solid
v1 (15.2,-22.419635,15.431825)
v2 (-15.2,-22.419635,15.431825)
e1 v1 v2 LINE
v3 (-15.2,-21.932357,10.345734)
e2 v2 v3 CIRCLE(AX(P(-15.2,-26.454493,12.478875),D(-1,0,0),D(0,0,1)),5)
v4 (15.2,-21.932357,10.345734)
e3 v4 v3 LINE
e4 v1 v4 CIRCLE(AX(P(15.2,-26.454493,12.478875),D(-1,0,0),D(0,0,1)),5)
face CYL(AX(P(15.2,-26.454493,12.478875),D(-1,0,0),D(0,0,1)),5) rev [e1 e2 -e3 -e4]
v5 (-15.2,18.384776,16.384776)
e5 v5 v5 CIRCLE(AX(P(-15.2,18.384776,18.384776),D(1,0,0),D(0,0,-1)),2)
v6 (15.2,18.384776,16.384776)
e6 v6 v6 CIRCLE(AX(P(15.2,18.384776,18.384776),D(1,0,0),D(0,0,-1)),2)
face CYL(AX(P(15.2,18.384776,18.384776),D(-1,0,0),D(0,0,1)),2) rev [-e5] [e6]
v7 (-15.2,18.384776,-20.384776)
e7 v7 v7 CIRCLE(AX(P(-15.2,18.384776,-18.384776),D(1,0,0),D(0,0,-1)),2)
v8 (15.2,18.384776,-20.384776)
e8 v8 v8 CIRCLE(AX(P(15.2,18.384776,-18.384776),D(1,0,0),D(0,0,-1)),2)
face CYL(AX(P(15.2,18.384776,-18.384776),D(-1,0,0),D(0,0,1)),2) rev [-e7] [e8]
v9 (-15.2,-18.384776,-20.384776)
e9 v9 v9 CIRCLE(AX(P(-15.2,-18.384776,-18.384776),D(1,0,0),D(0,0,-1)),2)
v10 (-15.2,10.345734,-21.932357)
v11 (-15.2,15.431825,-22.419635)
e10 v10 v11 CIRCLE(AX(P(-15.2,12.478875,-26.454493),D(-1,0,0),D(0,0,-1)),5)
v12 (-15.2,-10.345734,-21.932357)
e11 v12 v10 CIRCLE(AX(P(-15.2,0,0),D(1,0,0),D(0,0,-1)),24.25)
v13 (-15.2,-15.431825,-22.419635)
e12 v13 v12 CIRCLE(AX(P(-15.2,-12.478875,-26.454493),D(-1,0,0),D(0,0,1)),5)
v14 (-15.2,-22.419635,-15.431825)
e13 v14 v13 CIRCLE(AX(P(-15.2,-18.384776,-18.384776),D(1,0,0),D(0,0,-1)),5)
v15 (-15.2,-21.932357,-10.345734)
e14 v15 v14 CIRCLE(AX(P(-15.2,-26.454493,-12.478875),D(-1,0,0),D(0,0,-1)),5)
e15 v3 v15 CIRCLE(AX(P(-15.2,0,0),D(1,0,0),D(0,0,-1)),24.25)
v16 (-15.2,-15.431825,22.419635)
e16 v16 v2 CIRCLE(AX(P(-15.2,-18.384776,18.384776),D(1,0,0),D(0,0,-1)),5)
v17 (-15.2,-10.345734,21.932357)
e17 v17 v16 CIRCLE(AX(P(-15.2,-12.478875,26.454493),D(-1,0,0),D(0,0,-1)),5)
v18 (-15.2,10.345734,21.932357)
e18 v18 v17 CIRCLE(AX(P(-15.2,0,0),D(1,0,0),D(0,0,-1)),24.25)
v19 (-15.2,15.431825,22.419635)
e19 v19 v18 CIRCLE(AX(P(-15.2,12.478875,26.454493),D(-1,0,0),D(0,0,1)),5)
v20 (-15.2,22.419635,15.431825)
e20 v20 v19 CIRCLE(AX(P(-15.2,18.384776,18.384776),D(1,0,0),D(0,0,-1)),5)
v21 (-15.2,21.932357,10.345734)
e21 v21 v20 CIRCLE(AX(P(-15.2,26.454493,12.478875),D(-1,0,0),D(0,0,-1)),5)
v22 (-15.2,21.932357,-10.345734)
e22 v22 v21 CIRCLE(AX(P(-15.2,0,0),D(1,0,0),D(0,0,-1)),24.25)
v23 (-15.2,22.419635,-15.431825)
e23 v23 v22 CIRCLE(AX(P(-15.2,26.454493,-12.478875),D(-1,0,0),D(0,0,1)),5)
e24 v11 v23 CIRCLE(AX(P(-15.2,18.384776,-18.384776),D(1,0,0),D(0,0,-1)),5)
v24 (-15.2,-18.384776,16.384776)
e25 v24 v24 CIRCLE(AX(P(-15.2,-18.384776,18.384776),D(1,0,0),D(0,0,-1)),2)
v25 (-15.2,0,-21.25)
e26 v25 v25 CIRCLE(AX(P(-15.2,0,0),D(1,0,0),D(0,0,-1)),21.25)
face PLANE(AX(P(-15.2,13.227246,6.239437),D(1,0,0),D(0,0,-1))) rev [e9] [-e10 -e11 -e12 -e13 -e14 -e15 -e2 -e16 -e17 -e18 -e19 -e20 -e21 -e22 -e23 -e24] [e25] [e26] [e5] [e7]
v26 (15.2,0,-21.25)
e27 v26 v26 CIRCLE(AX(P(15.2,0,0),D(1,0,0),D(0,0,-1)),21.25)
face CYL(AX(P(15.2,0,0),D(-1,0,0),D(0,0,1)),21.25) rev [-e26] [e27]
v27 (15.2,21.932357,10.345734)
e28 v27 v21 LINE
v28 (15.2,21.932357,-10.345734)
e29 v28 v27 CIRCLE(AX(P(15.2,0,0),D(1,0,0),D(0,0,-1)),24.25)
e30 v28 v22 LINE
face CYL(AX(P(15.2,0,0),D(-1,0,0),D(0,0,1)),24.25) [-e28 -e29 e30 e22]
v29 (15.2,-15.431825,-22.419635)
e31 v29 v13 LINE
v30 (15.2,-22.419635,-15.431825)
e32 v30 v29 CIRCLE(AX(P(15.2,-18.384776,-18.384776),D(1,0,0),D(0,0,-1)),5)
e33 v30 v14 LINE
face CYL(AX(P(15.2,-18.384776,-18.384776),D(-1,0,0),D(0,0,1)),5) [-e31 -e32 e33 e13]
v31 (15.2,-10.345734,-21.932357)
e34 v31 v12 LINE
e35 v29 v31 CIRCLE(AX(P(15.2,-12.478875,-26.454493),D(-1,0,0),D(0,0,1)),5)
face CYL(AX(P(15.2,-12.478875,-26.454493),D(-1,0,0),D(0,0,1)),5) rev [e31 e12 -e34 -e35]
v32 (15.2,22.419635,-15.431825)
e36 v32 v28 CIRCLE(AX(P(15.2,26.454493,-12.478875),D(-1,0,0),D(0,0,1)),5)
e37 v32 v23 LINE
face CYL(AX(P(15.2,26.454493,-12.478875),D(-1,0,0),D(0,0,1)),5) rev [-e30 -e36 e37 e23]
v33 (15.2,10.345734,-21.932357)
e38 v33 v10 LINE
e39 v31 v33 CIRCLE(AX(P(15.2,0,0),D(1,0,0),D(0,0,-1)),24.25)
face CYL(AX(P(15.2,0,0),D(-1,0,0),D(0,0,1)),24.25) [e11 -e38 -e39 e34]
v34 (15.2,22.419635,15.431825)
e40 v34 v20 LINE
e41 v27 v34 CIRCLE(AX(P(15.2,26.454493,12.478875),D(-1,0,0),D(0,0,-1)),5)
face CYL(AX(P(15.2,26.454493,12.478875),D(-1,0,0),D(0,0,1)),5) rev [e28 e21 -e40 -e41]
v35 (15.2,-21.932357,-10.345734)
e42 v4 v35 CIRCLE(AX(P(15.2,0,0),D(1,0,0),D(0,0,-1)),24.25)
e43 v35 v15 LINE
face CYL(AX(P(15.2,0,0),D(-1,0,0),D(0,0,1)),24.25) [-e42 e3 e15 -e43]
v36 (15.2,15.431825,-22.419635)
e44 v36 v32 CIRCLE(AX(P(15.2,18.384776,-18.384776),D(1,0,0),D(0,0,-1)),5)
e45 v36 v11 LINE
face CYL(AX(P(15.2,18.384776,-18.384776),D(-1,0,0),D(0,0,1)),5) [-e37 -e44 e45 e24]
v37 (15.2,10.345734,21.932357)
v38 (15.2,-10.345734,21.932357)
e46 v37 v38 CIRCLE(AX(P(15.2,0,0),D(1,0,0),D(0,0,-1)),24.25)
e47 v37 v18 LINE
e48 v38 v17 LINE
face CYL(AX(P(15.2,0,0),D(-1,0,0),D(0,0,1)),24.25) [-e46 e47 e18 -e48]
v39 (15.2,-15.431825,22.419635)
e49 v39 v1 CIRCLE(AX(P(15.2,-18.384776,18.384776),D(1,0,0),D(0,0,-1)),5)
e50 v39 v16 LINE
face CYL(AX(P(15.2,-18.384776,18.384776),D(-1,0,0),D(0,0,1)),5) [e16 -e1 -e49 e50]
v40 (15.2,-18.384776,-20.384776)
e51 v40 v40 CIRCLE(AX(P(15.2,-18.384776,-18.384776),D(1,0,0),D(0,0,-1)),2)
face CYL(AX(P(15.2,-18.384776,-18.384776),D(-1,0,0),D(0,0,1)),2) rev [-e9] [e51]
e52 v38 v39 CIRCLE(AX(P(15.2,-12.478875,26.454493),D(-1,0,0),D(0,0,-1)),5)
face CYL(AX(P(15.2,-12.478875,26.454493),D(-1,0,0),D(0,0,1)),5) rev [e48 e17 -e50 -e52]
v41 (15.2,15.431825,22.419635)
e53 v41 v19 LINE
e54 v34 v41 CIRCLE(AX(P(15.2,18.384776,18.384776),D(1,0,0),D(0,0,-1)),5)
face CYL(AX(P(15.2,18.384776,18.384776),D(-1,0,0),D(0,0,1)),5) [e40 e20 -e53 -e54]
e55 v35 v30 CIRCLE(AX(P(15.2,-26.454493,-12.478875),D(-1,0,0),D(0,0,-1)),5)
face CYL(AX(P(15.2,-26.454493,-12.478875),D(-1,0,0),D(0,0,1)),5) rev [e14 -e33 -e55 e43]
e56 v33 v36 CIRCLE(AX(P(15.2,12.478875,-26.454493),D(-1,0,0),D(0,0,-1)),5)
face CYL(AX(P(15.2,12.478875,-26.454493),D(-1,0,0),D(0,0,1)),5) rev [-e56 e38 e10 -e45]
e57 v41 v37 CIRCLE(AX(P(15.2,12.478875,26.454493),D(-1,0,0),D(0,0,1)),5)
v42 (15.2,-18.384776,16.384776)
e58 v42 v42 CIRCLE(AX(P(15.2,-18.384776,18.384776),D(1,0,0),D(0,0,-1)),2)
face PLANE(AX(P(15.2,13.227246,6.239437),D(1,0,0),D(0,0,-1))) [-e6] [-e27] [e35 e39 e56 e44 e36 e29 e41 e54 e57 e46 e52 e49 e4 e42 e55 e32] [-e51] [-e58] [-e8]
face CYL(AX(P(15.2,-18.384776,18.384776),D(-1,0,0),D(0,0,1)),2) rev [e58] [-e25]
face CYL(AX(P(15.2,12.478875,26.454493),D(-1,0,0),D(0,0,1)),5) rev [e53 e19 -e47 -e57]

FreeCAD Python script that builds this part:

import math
import FreeCAD as App
import Part
import Sketcher
from FreeCAD import Vector

doc = App.newDocument("Part")
body = doc.addObject("PartDesign::Body", "Body")

sketch1 = body.newObject("Sketcher::SketchObject", "Sketch")
sketch1.AttachmentSupport = (doc.getObject("YZ_Plane"), [""])
sketch1.MapMode = "FlatFace"
sketch1.addGeometry([
    Part.ArcOfCircle(Part.Circle(Vector(18.384776, 18.384776, 0), Vector(0, 0, 1), 5), math.radians(-36.1989), math.radians(126.1989)),
    Part.ArcOfCircle(Part.Circle(Vector(12.478875, 26.454493, 0), Vector(0, 0, 1), 5), math.radians(-115.253766), math.radians(-53.8011)),
    Part.ArcOfCircle(Part.Circle(Vector(0, 0, 0), Vector(0, 0, 1), 24.25), math.radians(64.746234), math.radians(115.253766)),
    Part.ArcOfCircle(Part.Circle(Vector(-12.478875, 26.454493, 0), Vector(0, 0, 1), 5), math.radians(-126.1989), math.radians(-64.746234)),
    Part.ArcOfCircle(Part.Circle(Vector(-18.384776, 18.384776, 0), Vector(0, 0, 1), 5), math.radians(53.8011), math.radians(216.1989)),
    Part.ArcOfCircle(Part.Circle(Vector(-26.454493, 12.478875, 0), Vector(0, 0, 1), 5), math.radians(-25.253766), math.radians(36.1989)),
    Part.ArcOfCircle(Part.Circle(Vector(0, 0, 0), Vector(0, 0, 1), 24.25), math.radians(154.746234), math.radians(205.253766)),
    Part.ArcOfCircle(Part.Circle(Vector(-26.454493, -12.478875, 0), Vector(0, 0, 1), 5), math.radians(-36.1989), math.radians(25.253766)),
    Part.ArcOfCircle(Part.Circle(Vector(-18.384776, -18.384776, 0), Vector(0, 0, 1), 5), math.radians(143.8011), math.radians(306.1989)),
    Part.ArcOfCircle(Part.Circle(Vector(-12.478875, -26.454493, 0), Vector(0, 0, 1), 5), math.radians(64.746234), math.radians(126.1989)),
    Part.ArcOfCircle(Part.Circle(Vector(0, 0, 0), Vector(0, 0, 1), 24.25), math.radians(-115.253766), math.radians(-64.746234)),
    Part.ArcOfCircle(Part.Circle(Vector(12.478875, -26.454493, 0), Vector(0, 0, 1), 5), math.radians(53.8011), math.radians(115.253766)),
    Part.ArcOfCircle(Part.Circle(Vector(18.384776, -18.384776, 0), Vector(0, 0, 1), 5), math.radians(-126.1989), math.radians(36.1989)),
    Part.ArcOfCircle(Part.Circle(Vector(26.454493, -12.478875, 0), Vector(0, 0, 1), 5), math.radians(154.746234), math.radians(216.1989)),
    Part.ArcOfCircle(Part.Circle(Vector(0, 0, 0), Vector(0, 0, 1), 24.25), math.radians(-25.253766), math.radians(25.253766)),
    Part.ArcOfCircle(Part.Circle(Vector(26.454493, 12.478875, 0), Vector(0, 0, 1), 5), math.radians(143.8011), math.radians(205.253766)),
    Part.Circle(Vector(-18.384776, 18.384776, 0), Vector(0, 0, 1), 2),
    Part.Circle(Vector(-18.384776, -18.384776, 0), Vector(0, 0, 1), 2),
    Part.Circle(Vector(18.384776, 18.384776, 0), Vector(0, 0, 1), 2),
    Part.Circle(Vector(0, 0, 0), Vector(0, 0, 1), 21.25),
    Part.Circle(Vector(18.384776, -18.384776, 0), Vector(0, 0, 1), 2),
], False)
sketch1.addConstraint([
    Sketcher.Constraint("Tangent", 0, 2, 1, 2),
    Sketcher.Constraint("Tangent", 1, 1, 2, 1),
    Sketcher.Constraint("Tangent", 2, 2, 3, 2),
    Sketcher.Constraint("Tangent", 3, 1, 4, 1),
    Sketcher.Constraint("Tangent", 4, 2, 5, 2),
    Sketcher.Constraint("Tangent", 5, 1, 6, 1),
    Sketcher.Constraint("Tangent", 6, 2, 7, 2),
    Sketcher.Constraint("Tangent", 7, 1, 8, 1),
    Sketcher.Constraint("Tangent", 8, 2, 9, 2),
    Sketcher.Constraint("Tangent", 9, 1, 10, 1),
    Sketcher.Constraint("Tangent", 10, 2, 11, 2),
    Sketcher.Constraint("Tangent", 11, 1, 12, 1),
    Sketcher.Constraint("Tangent", 12, 2, 13, 2),
    Sketcher.Constraint("Tangent", 13, 1, 14, 1),
    Sketcher.Constraint("Tangent", 14, 2, 15, 2),
    Sketcher.Constraint("Tangent", 15, 1, 0, 1),
    Sketcher.Constraint("Coincident", 2, 3, -1, 1),
    Sketcher.Constraint("Coincident", 6, 3, -1, 1),
    Sketcher.Constraint("Coincident", 10, 3, -1, 1),
    Sketcher.Constraint("Coincident", 14, 3, -1, 1),
    Sketcher.Constraint("Coincident", 19, 3, -1, 1),
    Sketcher.Constraint("Coincident", 16, 3, 4, 3),
    Sketcher.Constraint("Coincident", 17, 3, 8, 3),
    Sketcher.Constraint("Coincident", 18, 3, 0, 3),
    Sketcher.Constraint("Coincident", 20, 3, 12, 3),
    Sketcher.Constraint("Equal", 0, 1),
    Sketcher.Constraint("Equal", 1, 3),
    Sketcher.Constraint("Equal", 3, 4),
    Sketcher.Constraint("Equal", 4, 5),
    Sketcher.Constraint("Equal", 2, 6),
    Sketcher.Constraint("Equal", 5, 7),
    Sketcher.Constraint("Equal", 7, 8),
    Sketcher.Constraint("Equal", 8, 9),
    Sketcher.Constraint("Equal", 6, 10),
    Sketcher.Constraint("Equal", 9, 11),
    Sketcher.Constraint("Equal", 11, 12),
    Sketcher.Constraint("Equal", 12, 13),
    Sketcher.Constraint("Equal", 10, 14),
    Sketcher.Constraint("Equal", 13, 15),
    Sketcher.Constraint("Equal", 16, 17),
    Sketcher.Constraint("Equal", 17, 18),
    Sketcher.Constraint("Equal", 18, 20),
    Sketcher.Constraint("Symmetric", 0, 3, 8, 3, -1, 1),
    Sketcher.Constraint("Symmetric", 4, 3, 12, 3, -1, 1),
    Sketcher.Constraint("Symmetric", 0, 3, 4, 3, -2),
    Sketcher.Constraint("Diameter", 16, 4.0),
    Sketcher.Constraint("Radius", 0, 5.0),
    Sketcher.Constraint("Diameter", 19, 42.5),
    Sketcher.Constraint("Radius", 2, 24.25),
    Sketcher.Constraint("DistanceX", 1, 3, 0, 3, 5.905902),
    Sketcher.Constraint("DistanceY", 5, 3, 4, 3, 5.905902),
])
pad1 = body.newObject("PartDesign::Pad", "Pad")
pad1.Profile = sketch1
pad1.Length = 30.4
pad1.Midplane = True

doc.recompute()
